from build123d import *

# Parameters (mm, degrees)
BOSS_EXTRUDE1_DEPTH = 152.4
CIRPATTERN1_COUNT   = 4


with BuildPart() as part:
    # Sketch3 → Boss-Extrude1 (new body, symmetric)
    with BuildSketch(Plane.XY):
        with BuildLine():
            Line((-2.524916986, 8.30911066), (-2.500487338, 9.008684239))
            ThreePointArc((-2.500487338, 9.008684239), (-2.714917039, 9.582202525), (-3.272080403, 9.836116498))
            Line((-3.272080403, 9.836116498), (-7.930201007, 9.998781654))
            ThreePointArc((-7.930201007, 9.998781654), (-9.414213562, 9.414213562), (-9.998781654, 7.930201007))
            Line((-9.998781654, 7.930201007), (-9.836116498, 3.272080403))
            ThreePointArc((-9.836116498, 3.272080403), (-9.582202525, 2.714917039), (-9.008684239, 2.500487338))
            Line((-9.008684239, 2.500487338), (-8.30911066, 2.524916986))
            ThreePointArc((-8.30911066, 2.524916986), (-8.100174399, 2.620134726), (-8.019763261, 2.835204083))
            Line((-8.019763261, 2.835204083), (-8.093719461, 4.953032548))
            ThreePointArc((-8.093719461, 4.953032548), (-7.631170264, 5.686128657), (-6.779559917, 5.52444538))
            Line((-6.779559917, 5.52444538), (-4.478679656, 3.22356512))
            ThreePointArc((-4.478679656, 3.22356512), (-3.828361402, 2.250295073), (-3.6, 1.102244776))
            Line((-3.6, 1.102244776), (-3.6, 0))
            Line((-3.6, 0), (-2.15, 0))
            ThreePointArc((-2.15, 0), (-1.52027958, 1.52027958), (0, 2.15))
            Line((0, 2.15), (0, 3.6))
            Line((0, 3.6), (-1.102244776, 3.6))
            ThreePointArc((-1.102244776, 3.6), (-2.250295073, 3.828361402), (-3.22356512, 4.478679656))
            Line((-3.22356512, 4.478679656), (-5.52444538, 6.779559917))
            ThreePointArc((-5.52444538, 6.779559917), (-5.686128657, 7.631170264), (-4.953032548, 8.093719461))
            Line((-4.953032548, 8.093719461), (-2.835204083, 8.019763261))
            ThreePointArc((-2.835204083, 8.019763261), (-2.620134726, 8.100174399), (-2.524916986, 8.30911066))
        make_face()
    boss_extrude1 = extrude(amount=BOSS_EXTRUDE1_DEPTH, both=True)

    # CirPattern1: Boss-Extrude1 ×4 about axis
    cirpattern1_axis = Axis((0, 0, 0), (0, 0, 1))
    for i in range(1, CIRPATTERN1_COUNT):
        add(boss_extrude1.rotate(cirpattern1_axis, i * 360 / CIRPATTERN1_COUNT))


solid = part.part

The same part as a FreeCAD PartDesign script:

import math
import FreeCAD as App
import Part
import Sketcher

V = App.Vector
Q = App.Units.Quantity

doc = App.newDocument("Part")
params = doc.addObject("Spreadsheet::Sheet", "Params")
for row, (alias, value) in enumerate([
    ("sketch1_radius", "2 mm"),
    ("sketch1_radius2", "3 mm"),
    ("sketch1_radius3", "0.8 mm"),
    ("sketch1_radius4", "0.3 mm"),
    ("sketch1_radius5", "2.15 mm"),
    ("pad1_length", "304.8 mm"),
], start=1):
    params.set(f"A{row}", alias)
    params.set(f"B{row}", "=" + value)
    params.setAlias(f"B{row}", alias)

body = doc.addObject("PartDesign::Body", "Body")

sketch1 = doc.addObject("Sketcher::SketchObject", "Sketch")
body.addObject(sketch1)
sketch1.AttachmentSupport = (doc.XY_Plane, [""])
sketch1.MapMode = "FlatFace"
sketch1.addGeometry([
    Part.LineSegment(V(-2.52, 8.31, 0), V(-2.5, 9.01, 0)),
    Part.ArcOfCircle(Part.Circle(V(-3.3, 9.04, 0), V(0, 0, 1), 0.8), math.radians(-2), math.radians(88)),
    Part.LineSegment(V(-3.27, 9.84, 0), V(-7.93, 10, 0)),
    Part.ArcOfCircle(Part.Circle(V(-8, 8, 0), V(0, 0, 1), 2), math.radians(88), math.radians(182)),
    Part.LineSegment(V(-10, 7.93, 0), V(-9.84, 3.27, 0)),
    Part.ArcOfCircle(Part.Circle(V(-9.04, 3.3, 0), V(0, 0, 1), 0.8), math.radians(-178), math.radians(-88)),
    Part.LineSegment(V(-9.01, 2.5, 0), V(-8.31, 2.52, 0)),
    Part.ArcOfCircle(Part.Circle(V(-8.32, 2.82, 0), V(0, 0, 1), 0.3), math.radians(-88), math.radians(2)),
    Part.LineSegment(V(-8.02, 2.84, 0), V(-8.09, 4.95, 0)),
    Part.ArcOfCircle(Part.Circle(V(-7.32, 4.98, 0), V(0, 0, 1), 0.77), math.radians(45), math.radians(182)),
    Part.LineSegment(V(-6.78, 5.52, 0), V(-4.48, 3.22, 0)),
    Part.ArcOfCircle(Part.Circle(V(-6.6, 1.1, 0), V(0, 0, 1), 3), math.radians(0), math.radians(45)),
    Part.LineSegment(V(-3.6, 1.1, 0), V(-3.6, 0, 0)),
    Part.LineSegment(V(-3.6, 0, 0), V(-2.15, 0, 0)),
    Part.ArcOfCircle(Part.Circle(V(0, 0, 0), V(0, 0, 1), 2.15), math.radians(90), math.radians(180)),
    Part.LineSegment(V(0, 2.15, 0), V(0, 3.6, 0)),
    Part.LineSegment(V(0, 3.6, 0), V(-1.1, 3.6, 0)),
    Part.ArcOfCircle(Part.Circle(V(-1.1, 6.6, 0), V(0, 0, 1), 3), math.radians(-135), math.radians(-90)),
    Part.LineSegment(V(-3.22, 4.48, 0), V(-5.52, 6.78, 0)),
    Part.ArcOfCircle(Part.Circle(V(-4.98, 7.32, 0), V(0, 0, 1), 0.77), math.radians(88), math.radians(225)),
    Part.LineSegment(V(-4.95, 8.09, 0), V(-2.84, 8.02, 0)),
    Part.ArcOfCircle(Part.Circle(V(-2.82, 8.32, 0), V(0, 0, 1), 0.3), math.radians(-92), math.radians(-2)),
], False)
sketch1.addConstraint([
    Sketcher.Constraint("Tangent", 0, 2, 1, 1),
    Sketcher.Constraint("Tangent", 1, 2, 2, 1),
    Sketcher.Constraint("Tangent", 2, 2, 3, 1),
    Sketcher.Constraint("Tangent", 3, 2, 4, 1),
    Sketcher.Constraint("Tangent", 4, 2, 5, 1),
    Sketcher.Constraint("Tangent", 5, 2, 6, 1),
    Sketcher.Constraint("Tangent", 6, 2, 7, 1),
    Sketcher.Constraint("Tangent", 7, 2, 8, 1),
    Sketcher.Constraint("Tangent", 8, 2, 9, 2),
    Sketcher.Constraint("Tangent", 9, 1, 10, 1),
    Sketcher.Constraint("Tangent", 10, 2, 11, 2),
    Sketcher.Constraint("Tangent", 11, 1, 12, 1),
    Sketcher.Constraint("Coincident", 12, 2, 13, 1),
    Sketcher.Constraint("Coincident", 13, 2, 14, 2),
    Sketcher.Constraint("Coincident", 14, 1, 15, 1),
    Sketcher.Constraint("Coincident", 15, 2, 16, 1),
    Sketcher.Constraint("Tangent", 16, 2, 17, 2),
    Sketcher.Constraint("Tangent", 17, 1, 18, 1),
    Sketcher.Constraint("Tangent", 18, 2, 19, 2),
    Sketcher.Constraint("Tangent", 19, 1, 20, 1),
    Sketcher.Constraint("Tangent", 20, 2, 21, 1),
    Sketcher.Constraint("Tangent", 21, 2, 0, 1),
    Sketcher.Constraint("Vertical", 12),
    Sketcher.Constraint("Horizontal", 13),
    Sketcher.Constraint("Vertical", 15),
    Sketcher.Constraint("Horizontal", 16),
    Sketcher.Constraint("Coincident", 14, 3, -1, 1),
    Sketcher.Constraint("Equal", 1, 5),
    Sketcher.Constraint("Equal", 11, 17),
    Sketcher.Constraint("Equal", 9, 19),
    Sketcher.Constraint("Equal", 7, 21),
    Sketcher.Constraint("PointOnObject", 12, 2, -1),
    Sketcher.Constraint("PointOnObject", 14, 1, -2),
    Sketcher.Constraint("Perpendicular", 0, 2),
    Sketcher.Constraint("Perpendicular", 4, 6),
    Sketcher.Constraint("Perpendicular", 6, 8),
    Sketcher.Constraint("Parallel", 10, 18),
    Sketcher.Constraint("Parallel", 2, 20),
    Sketcher.Constraint("Equal", 16, 12),
    Sketcher.Constraint("Equal", 13, 15),
    Sketcher.Constraint("Equal", 2, 4),
    Sketcher.Constraint("Equal", 0, 6),
    Sketcher.Constraint("Equal", 10, 18),
    Sketcher.Constraint("Equal", 8, 20),
    Sketcher.Constraint("Radius", 3, 2.0),
    Sketcher.Constraint("Radius", 11, 3.0),
    Sketcher.Constraint("Radius", 1, 0.8),
    Sketcher.Constraint("Radius", 7, 0.3),
    Sketcher.Constraint("Angle", 0, Q("88 deg")),
    Sketcher.Constraint("Angle", 4, Q("-88 deg")),
    Sketcher.Constraint("Radius", 14, 2.15),
    Sketcher.Constraint("DistanceX", 3, 3, -1, 1, 8.0),
    Sketcher.Constraint("Distance", 0, 0.7),
    Sketcher.Constraint("DistanceX", 13, 1, 13, 2, 1.45),
    Sketcher.Constraint("DistanceX", 1, 3, -1, 1, 3.3),
    Sketcher.Constraint("Radius", 9, 0.770092),
    Sketcher.Constraint("DistanceY", 7, 3, 8, 2, 2.128298),
])
sketch1.setExpression("Constraints[44]", "Params.sketch1_radius")
sketch1.setExpression("Constraints[45]", "Params.sketch1_radius2")
sketch1.setExpression("Constraints[46]", "Params.sketch1_radius3")
sketch1.setExpression("Constraints[47]", "Params.sketch1_radius4")
sketch1.setExpression("Constraints[50]", "Params.sketch1_radius5")
pad1 = doc.addObject("PartDesign::Pad", "Pad")
body.addObject(pad1)
pad1.Profile = sketch1
pad1.setExpression("Length", "Params.pad1_length")
pad1.Midplane = True
doc.recompute()

polarpattern = doc.addObject("PartDesign::PolarPattern", "PolarPattern")
body.addObject(polarpattern)
polarpattern.Originals = [pad1]
polarpattern.Axis = (doc.Z_Axis, [""])
polarpattern.Angle = 360
polarpattern.Occurrences = 4
body.Tip = polarpattern

doc.recompute()
